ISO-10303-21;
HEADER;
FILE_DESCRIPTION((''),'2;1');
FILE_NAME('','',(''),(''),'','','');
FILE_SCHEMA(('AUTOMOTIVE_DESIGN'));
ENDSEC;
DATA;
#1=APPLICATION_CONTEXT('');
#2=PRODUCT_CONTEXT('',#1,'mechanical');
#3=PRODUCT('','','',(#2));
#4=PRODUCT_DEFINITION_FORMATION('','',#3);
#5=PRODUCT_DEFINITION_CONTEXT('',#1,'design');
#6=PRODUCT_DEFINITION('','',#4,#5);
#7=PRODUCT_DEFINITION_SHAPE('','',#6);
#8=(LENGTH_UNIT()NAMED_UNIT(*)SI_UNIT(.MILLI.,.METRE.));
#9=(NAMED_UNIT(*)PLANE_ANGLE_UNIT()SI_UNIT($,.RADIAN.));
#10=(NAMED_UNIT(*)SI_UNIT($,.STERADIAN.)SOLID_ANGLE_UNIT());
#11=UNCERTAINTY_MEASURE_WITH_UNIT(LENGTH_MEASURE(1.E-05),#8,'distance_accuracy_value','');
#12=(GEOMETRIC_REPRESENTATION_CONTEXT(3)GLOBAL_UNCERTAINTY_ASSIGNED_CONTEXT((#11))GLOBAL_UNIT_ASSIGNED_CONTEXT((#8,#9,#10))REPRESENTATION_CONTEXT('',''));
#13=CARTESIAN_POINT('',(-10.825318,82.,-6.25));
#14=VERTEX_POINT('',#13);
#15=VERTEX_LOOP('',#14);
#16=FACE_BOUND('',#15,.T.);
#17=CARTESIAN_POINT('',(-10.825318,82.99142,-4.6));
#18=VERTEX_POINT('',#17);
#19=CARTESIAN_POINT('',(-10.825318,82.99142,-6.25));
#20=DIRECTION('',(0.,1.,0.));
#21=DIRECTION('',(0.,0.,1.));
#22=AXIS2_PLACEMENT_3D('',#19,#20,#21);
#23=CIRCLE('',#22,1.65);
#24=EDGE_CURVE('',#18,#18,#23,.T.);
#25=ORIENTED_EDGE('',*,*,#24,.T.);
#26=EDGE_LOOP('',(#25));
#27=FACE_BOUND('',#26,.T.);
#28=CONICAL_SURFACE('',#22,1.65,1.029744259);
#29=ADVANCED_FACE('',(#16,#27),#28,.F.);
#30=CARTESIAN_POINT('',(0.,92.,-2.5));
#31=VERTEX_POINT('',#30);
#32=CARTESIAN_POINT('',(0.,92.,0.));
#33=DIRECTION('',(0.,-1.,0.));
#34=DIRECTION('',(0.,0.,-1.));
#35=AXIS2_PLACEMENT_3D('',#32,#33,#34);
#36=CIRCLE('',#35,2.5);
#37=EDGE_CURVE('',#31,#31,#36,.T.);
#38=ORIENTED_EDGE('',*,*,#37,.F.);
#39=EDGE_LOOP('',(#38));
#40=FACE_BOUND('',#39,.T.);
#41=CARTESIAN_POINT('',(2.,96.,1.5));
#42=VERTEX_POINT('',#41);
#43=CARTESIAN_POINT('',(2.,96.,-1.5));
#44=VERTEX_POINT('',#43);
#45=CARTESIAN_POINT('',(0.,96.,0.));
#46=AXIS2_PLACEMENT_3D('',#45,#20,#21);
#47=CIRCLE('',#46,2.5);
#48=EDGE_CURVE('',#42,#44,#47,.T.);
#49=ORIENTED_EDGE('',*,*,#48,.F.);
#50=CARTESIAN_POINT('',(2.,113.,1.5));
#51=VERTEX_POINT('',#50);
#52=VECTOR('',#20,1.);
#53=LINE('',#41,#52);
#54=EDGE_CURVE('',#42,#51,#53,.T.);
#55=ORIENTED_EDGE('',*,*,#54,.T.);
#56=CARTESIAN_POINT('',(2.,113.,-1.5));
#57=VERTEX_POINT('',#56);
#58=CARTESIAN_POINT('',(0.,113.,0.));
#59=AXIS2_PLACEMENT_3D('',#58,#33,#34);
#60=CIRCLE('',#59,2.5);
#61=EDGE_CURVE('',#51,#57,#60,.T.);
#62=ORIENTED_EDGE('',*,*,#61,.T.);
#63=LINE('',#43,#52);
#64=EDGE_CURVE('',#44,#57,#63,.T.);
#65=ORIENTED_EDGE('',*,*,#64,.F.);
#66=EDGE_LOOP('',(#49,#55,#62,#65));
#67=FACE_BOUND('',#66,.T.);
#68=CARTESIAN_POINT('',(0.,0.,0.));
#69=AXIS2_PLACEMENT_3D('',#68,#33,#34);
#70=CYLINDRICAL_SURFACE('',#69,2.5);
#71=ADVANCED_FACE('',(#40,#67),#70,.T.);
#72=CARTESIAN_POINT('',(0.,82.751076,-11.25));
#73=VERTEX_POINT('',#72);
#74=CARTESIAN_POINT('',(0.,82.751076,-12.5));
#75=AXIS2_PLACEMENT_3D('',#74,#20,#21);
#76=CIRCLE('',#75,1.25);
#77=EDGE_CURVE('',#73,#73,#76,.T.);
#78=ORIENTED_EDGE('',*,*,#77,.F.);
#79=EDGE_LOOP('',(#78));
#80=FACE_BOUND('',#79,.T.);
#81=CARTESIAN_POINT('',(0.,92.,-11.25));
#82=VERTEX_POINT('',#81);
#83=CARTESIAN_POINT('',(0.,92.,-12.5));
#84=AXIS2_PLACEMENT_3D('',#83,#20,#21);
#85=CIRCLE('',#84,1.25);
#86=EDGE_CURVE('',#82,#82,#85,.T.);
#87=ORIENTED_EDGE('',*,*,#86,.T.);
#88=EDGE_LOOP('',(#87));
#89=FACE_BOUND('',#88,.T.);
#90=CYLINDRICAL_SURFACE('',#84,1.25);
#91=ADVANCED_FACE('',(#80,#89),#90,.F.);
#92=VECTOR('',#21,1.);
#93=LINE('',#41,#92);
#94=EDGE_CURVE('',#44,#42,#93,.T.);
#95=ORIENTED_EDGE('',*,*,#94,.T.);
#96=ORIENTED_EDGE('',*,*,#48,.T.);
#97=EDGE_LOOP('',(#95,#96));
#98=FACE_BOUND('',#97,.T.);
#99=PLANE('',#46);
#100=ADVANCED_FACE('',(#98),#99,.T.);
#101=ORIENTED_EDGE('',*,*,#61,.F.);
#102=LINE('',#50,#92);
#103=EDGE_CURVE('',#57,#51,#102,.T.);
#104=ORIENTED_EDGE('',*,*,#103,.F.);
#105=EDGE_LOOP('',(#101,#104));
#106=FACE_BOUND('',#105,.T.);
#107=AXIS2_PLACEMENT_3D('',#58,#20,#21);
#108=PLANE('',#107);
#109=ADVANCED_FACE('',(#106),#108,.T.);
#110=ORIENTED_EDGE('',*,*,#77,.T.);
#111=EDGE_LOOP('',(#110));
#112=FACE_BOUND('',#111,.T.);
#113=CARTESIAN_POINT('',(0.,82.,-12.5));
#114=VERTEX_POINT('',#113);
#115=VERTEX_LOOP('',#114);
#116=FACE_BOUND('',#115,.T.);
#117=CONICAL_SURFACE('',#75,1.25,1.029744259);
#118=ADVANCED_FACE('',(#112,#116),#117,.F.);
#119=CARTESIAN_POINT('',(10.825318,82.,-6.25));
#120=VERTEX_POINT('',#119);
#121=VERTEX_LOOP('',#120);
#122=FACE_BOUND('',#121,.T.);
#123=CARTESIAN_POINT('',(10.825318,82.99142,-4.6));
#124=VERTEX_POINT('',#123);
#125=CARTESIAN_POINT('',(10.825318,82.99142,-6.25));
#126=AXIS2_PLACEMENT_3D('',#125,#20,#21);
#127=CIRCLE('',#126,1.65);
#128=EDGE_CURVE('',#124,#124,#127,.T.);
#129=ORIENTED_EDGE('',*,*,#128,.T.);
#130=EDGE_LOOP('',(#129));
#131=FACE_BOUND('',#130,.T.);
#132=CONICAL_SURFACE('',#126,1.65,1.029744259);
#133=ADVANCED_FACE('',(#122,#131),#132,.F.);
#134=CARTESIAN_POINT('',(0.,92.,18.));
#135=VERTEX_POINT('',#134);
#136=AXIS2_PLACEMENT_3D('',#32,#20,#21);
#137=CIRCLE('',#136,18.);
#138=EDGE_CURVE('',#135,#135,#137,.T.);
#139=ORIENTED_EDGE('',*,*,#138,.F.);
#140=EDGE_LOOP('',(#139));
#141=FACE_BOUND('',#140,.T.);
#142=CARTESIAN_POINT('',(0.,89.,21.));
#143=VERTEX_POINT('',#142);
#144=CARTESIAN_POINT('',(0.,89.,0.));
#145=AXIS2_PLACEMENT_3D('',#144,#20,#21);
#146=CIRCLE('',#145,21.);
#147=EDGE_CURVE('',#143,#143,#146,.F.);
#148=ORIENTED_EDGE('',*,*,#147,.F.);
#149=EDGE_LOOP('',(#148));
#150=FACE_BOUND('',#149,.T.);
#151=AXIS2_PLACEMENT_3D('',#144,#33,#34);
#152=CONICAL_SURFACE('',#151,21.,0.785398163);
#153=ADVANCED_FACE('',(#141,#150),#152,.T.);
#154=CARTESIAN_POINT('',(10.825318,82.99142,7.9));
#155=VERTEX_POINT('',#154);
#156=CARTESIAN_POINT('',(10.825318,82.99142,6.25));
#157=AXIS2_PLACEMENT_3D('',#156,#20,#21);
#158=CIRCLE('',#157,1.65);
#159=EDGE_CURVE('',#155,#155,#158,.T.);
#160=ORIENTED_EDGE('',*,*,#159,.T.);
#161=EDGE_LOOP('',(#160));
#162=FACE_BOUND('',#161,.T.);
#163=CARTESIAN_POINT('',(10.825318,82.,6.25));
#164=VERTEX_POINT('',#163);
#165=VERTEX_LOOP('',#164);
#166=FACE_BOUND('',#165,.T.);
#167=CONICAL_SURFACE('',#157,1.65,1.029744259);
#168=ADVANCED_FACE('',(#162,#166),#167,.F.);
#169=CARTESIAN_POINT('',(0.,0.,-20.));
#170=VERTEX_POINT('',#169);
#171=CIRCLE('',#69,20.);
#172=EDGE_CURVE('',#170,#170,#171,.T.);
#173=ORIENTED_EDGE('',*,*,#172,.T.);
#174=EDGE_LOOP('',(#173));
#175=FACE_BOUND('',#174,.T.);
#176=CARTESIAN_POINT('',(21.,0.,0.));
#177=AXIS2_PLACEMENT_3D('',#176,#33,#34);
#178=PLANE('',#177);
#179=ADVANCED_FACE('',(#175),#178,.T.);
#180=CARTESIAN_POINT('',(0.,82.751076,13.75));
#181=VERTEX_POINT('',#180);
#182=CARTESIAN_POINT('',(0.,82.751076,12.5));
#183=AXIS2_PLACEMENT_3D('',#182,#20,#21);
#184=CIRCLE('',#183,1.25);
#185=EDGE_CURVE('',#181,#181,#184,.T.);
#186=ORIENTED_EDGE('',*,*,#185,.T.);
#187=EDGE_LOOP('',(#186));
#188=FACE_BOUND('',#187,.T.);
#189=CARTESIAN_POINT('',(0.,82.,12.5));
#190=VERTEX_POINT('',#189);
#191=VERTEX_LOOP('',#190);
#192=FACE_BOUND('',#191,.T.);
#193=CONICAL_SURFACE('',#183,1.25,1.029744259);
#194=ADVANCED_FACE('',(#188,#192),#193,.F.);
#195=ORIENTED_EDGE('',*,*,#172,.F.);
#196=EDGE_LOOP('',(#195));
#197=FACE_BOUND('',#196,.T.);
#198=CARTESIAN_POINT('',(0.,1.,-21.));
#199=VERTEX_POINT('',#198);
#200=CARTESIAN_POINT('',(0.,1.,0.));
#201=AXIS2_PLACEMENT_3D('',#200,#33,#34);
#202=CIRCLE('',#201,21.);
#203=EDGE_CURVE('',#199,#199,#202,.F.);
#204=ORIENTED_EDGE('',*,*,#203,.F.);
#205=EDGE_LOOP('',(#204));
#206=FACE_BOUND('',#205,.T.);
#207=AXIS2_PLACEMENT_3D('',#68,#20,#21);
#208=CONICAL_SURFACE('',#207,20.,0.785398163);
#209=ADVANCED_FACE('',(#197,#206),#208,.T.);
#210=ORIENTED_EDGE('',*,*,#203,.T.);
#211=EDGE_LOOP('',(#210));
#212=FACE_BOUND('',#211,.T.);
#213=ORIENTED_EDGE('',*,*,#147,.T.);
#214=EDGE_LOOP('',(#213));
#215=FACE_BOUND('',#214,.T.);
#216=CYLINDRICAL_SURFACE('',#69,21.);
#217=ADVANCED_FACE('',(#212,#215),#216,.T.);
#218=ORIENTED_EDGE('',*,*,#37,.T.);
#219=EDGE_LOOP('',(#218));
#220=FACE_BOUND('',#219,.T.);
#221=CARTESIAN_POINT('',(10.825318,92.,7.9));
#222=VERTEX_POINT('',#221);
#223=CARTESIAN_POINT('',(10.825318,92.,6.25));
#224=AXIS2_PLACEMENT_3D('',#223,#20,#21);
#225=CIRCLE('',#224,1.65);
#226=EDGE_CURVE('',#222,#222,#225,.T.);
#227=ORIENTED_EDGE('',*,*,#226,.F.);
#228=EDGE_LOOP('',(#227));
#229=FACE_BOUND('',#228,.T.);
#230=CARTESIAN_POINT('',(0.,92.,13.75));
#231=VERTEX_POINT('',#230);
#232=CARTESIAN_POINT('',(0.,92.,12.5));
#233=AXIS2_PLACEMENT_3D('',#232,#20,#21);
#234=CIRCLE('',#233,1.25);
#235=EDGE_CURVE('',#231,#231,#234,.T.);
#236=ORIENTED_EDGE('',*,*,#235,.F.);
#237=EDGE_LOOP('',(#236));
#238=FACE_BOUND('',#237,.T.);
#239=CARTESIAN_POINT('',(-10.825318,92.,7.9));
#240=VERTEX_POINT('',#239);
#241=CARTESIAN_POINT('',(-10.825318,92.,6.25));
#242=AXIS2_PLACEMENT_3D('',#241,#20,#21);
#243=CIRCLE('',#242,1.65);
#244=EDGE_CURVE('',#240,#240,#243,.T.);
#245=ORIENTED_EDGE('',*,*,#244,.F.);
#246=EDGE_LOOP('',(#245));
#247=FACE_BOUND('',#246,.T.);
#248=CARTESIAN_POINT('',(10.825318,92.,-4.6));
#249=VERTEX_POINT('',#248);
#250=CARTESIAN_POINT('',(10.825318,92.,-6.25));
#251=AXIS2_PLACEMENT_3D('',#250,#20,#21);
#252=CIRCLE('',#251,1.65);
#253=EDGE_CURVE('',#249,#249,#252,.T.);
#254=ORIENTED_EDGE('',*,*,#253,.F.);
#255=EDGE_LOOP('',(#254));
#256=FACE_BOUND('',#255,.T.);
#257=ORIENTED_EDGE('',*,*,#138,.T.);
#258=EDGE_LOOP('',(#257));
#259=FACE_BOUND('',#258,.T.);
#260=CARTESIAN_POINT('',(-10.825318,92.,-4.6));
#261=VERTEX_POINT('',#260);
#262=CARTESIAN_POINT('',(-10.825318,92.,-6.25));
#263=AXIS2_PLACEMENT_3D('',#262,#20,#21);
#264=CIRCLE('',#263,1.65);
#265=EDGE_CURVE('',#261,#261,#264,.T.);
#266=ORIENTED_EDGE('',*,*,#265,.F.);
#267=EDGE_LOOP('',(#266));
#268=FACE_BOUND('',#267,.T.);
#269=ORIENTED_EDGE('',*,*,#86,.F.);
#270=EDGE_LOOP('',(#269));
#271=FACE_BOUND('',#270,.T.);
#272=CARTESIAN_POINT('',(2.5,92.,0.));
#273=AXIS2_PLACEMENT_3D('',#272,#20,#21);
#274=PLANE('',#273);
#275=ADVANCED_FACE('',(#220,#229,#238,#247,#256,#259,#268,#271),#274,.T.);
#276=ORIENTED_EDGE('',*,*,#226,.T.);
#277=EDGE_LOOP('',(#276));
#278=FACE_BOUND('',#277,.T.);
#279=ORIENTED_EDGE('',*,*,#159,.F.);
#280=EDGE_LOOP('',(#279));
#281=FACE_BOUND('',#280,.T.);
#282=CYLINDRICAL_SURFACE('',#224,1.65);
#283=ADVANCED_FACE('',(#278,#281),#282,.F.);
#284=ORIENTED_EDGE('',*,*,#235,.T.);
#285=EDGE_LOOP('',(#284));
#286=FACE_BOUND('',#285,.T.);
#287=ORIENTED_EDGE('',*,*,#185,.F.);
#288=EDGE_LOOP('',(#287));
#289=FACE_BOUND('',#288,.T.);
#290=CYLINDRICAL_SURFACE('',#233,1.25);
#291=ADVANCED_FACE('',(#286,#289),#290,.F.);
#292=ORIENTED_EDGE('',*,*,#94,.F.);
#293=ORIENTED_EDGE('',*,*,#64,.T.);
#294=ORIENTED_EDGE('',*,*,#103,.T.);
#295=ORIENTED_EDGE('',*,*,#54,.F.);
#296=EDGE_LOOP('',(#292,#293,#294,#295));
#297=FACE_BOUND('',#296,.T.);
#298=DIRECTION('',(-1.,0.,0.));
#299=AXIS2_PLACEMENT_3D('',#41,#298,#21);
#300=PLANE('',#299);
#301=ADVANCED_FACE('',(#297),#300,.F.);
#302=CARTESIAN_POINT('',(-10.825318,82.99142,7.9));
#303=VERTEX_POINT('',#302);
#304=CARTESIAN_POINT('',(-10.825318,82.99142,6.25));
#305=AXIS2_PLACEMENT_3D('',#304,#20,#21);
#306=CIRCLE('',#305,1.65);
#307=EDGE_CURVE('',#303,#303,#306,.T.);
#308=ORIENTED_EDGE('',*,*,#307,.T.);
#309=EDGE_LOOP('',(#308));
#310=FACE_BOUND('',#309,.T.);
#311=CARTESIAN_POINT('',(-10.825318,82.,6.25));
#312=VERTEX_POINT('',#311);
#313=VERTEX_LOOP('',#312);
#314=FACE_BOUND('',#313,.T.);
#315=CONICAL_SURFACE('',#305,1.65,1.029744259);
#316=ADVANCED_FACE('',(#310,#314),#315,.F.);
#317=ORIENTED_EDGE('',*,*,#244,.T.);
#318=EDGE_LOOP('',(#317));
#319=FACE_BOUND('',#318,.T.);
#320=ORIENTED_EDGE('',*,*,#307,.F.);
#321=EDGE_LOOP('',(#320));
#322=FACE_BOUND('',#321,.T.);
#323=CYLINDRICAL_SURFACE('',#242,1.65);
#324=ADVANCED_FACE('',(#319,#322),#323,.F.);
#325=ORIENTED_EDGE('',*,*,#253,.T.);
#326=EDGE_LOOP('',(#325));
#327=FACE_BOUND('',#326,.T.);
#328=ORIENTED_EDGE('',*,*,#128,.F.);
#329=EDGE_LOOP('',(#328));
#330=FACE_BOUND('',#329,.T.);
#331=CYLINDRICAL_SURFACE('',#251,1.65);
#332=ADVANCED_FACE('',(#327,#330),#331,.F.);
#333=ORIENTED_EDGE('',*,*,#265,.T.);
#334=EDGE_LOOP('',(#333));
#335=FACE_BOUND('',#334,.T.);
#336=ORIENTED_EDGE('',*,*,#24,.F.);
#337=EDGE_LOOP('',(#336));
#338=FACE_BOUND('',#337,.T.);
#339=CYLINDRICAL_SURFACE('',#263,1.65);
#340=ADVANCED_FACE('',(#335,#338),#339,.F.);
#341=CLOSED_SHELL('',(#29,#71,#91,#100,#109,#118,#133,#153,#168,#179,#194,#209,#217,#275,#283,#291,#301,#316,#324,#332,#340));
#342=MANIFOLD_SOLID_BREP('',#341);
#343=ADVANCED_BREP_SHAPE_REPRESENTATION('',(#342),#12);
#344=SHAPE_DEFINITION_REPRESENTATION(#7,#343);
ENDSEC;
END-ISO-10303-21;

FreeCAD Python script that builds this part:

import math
import FreeCAD as App
import Part
import Sketcher

V = App.Vector
Q = App.Units.Quantity


def edges_at(feature, points):
    """Names of the edges that pass closest to the given points."""
    edges = feature.Shape.Edges
    near = lambda p: min(range(len(edges)), key=lambda i: edges[i].distToShape(Part.Vertex(*p))[0])
    return sorted({f"Edge{near(p) + 1}" for p in points})

doc = App.newDocument("Part")
body = doc.addObject("PartDesign::Body", "Body")

# Sketch on XY plane
sketch1 = doc.addObject("Sketcher::SketchObject", "Sketch")
body.addObject(sketch1)
sketch1.AttachmentSupport = (doc.XY_Plane, [""])
sketch1.MapMode = "FlatFace"
sketch1.addGeometry([
    Part.LineSegment(V(0, 113, 0), V(0, 0, 0)),  # 0
    Part.LineSegment(V(0, 0, 0), V(21, 0, 0)),  # 1
    Part.LineSegment(V(21, 0, 0), V(21, 92, 0)),  # 2
    Part.LineSegment(V(21, 92, 0), V(2.5, 92, 0)),  # 3
    Part.LineSegment(V(2.5, 92, 0), V(2.5, 113, 0)),  # 4
    Part.LineSegment(V(2.5, 113, 0), V(0, 113, 0)),  # 5
], False)
sketch1.addConstraint([
    Sketcher.Constraint("Coincident", 0, 2, 1, 1),
    Sketcher.Constraint("Coincident", 1, 2, 2, 1),
    Sketcher.Constraint("Coincident", 2, 2, 3, 1),
    Sketcher.Constraint("Coincident", 3, 2, 4, 1),
    Sketcher.Constraint("Coincident", 4, 2, 5, 1),
    Sketcher.Constraint("Coincident", 5, 2, 0, 1),
    Sketcher.Constraint("Vertical", 0),
    Sketcher.Constraint("Horizontal", 1),
    Sketcher.Constraint("Vertical", 2),
    Sketcher.Constraint("Horizontal", 3),
    Sketcher.Constraint("Vertical", 4),
    Sketcher.Constraint("Horizontal", 5),
    Sketcher.Constraint("Coincident", 0, 2, -1, 1),
    Sketcher.Constraint("Equal", 1, 4),
    Sketcher.Constraint("DistanceX", 1, 1, 1, 2, Q("21 mm")),
    Sketcher.Constraint("DistanceY", 0, 2, 0, 1, Q("113 mm")),
    Sketcher.Constraint("DistanceX", 3, 2, 3, 1, Q("18.5 mm")),
])
revolution = doc.addObject("PartDesign::Revolution", "Revolution")
body.addObject(revolution)
revolution.Profile = sketch1
revolution.ReferenceAxis = (sketch1, ["V_Axis"])
revolution.Angle = 360

# Sketch on XZ plane
sketch2 = doc.addObject("Sketcher::SketchObject", "Sketch001")
body.addObject(sketch2)
sketch2.AttachmentSupport = (doc.XZ_Plane, [""])
sketch2.MapMode = "FlatFace"
sketch2.AttachmentOffset = App.Placement(V(0, 0, -96), App.Rotation())
sketch2.addGeometry([
    Part.LineSegment(V(2, -1.5, 0), V(2, 1.5, 0)),
    Part.ArcOfCircle(Part.Circle(V(0, 0, 0), V(0, 0, 1), 2.5), math.radians(-36.869898), math.radians(36.869898)),
], False)
sketch2.addConstraint([
    Sketcher.Constraint("Coincident", 0, 1, 1, 1),
    Sketcher.Constraint("Coincident", 1, 2, 0, 2),
    Sketcher.Constraint("Vertical", 0),
    Sketcher.Constraint("Coincident", 1, 3, -1, 1),
    Sketcher.Constraint("Radius", 1, Q("2.5 mm")),
    Sketcher.Constraint("DistanceY", 0, 1, 0, 2, Q("3 mm")),
])
pocket1 = doc.addObject("PartDesign::Pocket", "Pocket")
body.addObject(pocket1)
pocket1.Profile = sketch2
pocket1.Length = 17

# Sketch on XZ plane
sketch3 = doc.addObject("Sketcher::SketchObject", "Sketch002")
body.addObject(sketch3)
sketch3.AttachmentSupport = (doc.XZ_Plane, [""])
sketch3.MapMode = "FlatFace"
sketch3.AttachmentOffset = App.Placement(V(0, 0, -92), App.Rotation())
sketch3.addGeometry([
    Part.Circle(V(0, -12.5, 0), V(0, 0, 1), 1.25),
    Part.Circle(V(0, 12.5, 0), V(0, 0, 1), 1.25),
], False)
sketch3.addConstraint([
    Sketcher.Constraint("Equal", 0, 1),
    Sketcher.Constraint("Symmetric", 0, 3, 1, 3, -1, 1),
    Sketcher.Constraint("PointOnObject", 0, 3, -2),
    Sketcher.Constraint("Diameter", 0, Q("2.5 mm")),
    Sketcher.Constraint("DistanceY", 0, 3, 1, 3, Q("25 mm")),
])
doc.recompute()
hole = doc.addObject("PartDesign::Hole", "Hole")
body.addObject(hole)
hole.Profile = sketch3
hole.ThreadType = "None"
hole.Diameter = 2.5
hole.DepthType = "Dimension"
hole.Depth = 9.248924
hole.DrillPoint = "Angled"
hole.DrillPointAngle = 118
hole.Reversed = True

# Sketch on XZ plane
sketch4 = doc.addObject("Sketcher::SketchObject", "Sketch003")
body.addObject(sketch4)
sketch4.AttachmentSupport = (doc.XZ_Plane, [""])
sketch4.MapMode = "FlatFace"
sketch4.AttachmentOffset = App.Placement(V(0, 0, -92), App.Rotation())
sketch4.addGeometry([
    Part.Circle(V(-10.825318, -6.25, 0), V(0, 0, 1), 1.65),
    Part.Circle(V(-10.825318, 6.25, 0), V(0, 0, 1), 1.65),
    Part.Circle(V(10.825318, 6.25, 0), V(0, 0, 1), 1.65),
    Part.Circle(V(10.825318, -6.25, 0), V(0, 0, 1), 1.65),
], False)
sketch4.addConstraint([
    Sketcher.Constraint("Equal", 0, 1),
    Sketcher.Constraint("Equal", 1, 2),
    Sketcher.Constraint("Equal", 2, 3),
    Sketcher.Constraint("Symmetric", 0, 3, 2, 3, -1, 1),
    Sketcher.Constraint("Symmetric", 1, 3, 3, 3, -1, 1),
    Sketcher.Constraint("Symmetric", 1, 3, 2, 3, -2),
    Sketcher.Constraint("Diameter", 0, Q("3.3 mm")),
    Sketcher.Constraint("DistanceY", 0, 3, 1, 3, Q("12.5 mm")),
    Sketcher.Constraint("DistanceX", 0, 3, -1, 1, Q("10.825318 mm")),
])
doc.recompute()
hole2 = doc.addObject("PartDesign::Hole", "Hole001")
body.addObject(hole2)
hole2.Profile = sketch4
hole2.ThreadType = "None"
hole2.Diameter = 3.3
hole2.DepthType = "Dimension"
hole2.Depth = 9.00858
hole2.DrillPoint = "Angled"
hole2.DrillPointAngle = 118
hole2.Reversed = True
doc.recompute()

chamfer = doc.addObject("PartDesign::Chamfer", "Chamfer")
body.addObject(chamfer)
chamfer.Base = (hole2, edges_at(hole2, [(0, 92, 21)]))
chamfer.Size = 3
doc.recompute()

chamfer2 = doc.addObject("PartDesign::Chamfer", "Chamfer001")
body.addObject(chamfer2)
chamfer2.Base = (chamfer, edges_at(chamfer, [(0, 0, 21)]))
chamfer2.Size = 1

doc.recompute()
